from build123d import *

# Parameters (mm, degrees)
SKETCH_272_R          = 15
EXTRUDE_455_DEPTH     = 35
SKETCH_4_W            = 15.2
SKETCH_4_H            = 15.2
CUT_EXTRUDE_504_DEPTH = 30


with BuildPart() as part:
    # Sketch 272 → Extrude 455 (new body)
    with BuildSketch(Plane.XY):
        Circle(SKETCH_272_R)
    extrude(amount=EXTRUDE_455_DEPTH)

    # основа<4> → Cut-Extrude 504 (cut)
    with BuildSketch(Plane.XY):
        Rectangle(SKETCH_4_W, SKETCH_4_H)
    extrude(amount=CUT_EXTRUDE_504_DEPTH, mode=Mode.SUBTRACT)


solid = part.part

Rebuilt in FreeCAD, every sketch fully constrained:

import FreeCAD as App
import Part
import Sketcher

doc = App.newDocument("Part")
body = doc.addObject("PartDesign::Body", "Body")

# Sketch on XY plane
sketch1 = body.newObject("Sketcher::SketchObject", "Sketch")
sketch1.AttachmentSupport = (doc.getObject("XY_Plane"), [""])
sketch1.MapMode = "FlatFace"
sketch1.addGeometry(Part.Circle(App.Vector(0, 0, 0), App.Vector(0, 0, 1), 15), False)
sketch1.addConstraint([
    Sketcher.Constraint("Coincident", 0, 3, -1, 1),
    Sketcher.Constraint("Diameter", 0, 30.0),
])
pad1 = body.newObject("PartDesign::Pad", "Pad")
pad1.Profile = sketch1
pad1.Length = 35

# Sketch on XY plane
sketch2 = body.newObject("Sketcher::SketchObject", "Sketch001")
sketch2.AttachmentSupport = (doc.getObject("XY_Plane"), [""])
sketch2.MapMode = "FlatFace"
sketch2.addGeometry([
    Part.LineSegment(App.Vector(-7.6, 7.6, 0), App.Vector(-7.6, -7.6, 0)),
    Part.LineSegment(App.Vector(-7.6, -7.6, 0), App.Vector(7.6, -7.6, 0)),
    Part.LineSegment(App.Vector(7.6, -7.6, 0), App.Vector(7.6, 7.6, 0)),
    Part.LineSegment(App.Vector(7.6, 7.6, 0), App.Vector(-7.6, 7.6, 0)),
], False)
sketch2.addConstraint([
    Sketcher.Constraint("Coincident", 0, 2, 1, 1),
    Sketcher.Constraint("Coincident", 1, 2, 2, 1),
    Sketcher.Constraint("Coincident", 2, 2, 3, 1),
    Sketcher.Constraint("Coincident", 3, 2, 0, 1),
    Sketcher.Constraint("Vertical", 0),
    Sketcher.Constraint("Horizontal", 1),
    Sketcher.Constraint("Vertical", 2),
    Sketcher.Constraint("Horizontal", 3),
    Sketcher.Constraint("Symmetric", 0, 2, 2, 2, -1, 1),
    Sketcher.Constraint("Equal", 3, 0),
    Sketcher.Constraint("DistanceX", 1, 1, 1, 2, 15.2),
])
pocket1 = body.newObject("PartDesign::Pocket", "Pocket")
pocket1.Profile = sketch2
pocket1.Length = 30
pocket1.Reversed = True

doc.recompute()
